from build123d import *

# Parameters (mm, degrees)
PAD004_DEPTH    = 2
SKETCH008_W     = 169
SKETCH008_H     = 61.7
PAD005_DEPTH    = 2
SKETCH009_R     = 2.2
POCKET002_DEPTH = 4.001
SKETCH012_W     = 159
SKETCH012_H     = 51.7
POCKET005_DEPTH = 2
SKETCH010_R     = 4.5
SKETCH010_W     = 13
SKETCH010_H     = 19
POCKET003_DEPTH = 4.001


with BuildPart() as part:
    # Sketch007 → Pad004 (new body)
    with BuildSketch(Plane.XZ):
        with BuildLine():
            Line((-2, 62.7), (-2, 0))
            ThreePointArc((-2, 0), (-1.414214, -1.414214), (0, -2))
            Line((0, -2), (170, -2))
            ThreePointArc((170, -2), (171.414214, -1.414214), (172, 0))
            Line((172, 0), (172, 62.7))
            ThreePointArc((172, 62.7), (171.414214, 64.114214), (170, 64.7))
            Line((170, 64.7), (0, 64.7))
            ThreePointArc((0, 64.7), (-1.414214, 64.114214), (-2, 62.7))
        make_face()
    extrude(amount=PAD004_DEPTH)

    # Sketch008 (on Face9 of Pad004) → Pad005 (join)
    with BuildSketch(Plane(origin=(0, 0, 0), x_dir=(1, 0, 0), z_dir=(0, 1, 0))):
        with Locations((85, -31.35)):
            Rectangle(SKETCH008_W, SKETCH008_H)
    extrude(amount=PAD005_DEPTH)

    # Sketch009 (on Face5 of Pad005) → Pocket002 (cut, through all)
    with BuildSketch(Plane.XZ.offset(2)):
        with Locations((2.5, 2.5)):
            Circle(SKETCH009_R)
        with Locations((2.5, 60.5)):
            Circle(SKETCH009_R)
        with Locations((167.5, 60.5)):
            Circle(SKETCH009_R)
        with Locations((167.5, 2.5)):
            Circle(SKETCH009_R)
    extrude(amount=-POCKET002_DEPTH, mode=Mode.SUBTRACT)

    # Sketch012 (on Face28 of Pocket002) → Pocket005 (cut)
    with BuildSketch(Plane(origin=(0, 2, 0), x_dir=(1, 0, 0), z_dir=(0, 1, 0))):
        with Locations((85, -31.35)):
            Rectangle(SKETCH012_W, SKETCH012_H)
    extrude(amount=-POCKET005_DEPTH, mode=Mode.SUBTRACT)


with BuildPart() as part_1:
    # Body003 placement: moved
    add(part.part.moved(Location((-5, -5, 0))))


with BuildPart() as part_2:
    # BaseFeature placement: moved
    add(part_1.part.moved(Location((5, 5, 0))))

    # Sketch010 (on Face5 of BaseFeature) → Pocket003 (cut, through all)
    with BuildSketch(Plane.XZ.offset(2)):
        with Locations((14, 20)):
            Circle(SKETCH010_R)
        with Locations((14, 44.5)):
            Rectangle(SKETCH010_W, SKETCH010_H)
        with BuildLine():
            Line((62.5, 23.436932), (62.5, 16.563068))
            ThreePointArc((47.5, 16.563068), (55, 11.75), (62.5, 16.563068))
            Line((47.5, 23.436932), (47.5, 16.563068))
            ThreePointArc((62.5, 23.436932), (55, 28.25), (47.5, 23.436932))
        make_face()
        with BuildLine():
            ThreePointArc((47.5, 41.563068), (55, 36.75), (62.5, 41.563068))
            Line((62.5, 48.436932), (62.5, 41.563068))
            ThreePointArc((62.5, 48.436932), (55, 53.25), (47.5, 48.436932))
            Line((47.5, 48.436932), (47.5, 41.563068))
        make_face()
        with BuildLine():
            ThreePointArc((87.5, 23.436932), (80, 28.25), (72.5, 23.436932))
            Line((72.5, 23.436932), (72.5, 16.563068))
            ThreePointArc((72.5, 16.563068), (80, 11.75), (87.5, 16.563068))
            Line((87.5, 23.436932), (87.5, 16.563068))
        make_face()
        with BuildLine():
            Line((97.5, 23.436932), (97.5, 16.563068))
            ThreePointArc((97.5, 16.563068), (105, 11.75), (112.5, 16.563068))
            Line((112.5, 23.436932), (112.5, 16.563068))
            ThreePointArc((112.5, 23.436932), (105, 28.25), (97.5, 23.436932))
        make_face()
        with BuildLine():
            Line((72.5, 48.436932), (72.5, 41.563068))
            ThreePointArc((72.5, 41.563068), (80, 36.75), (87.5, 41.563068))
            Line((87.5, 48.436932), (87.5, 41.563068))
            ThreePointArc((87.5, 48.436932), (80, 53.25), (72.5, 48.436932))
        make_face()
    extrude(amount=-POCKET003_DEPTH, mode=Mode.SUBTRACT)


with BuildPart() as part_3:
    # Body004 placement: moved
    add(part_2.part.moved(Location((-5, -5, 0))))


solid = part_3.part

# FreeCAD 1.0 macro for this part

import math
import FreeCAD as App
import Part
import Sketcher
from FreeCAD import Vector


def add_polygon(sketch, points):
    """Adds a closed chain of lines whose ends are joined by coincident constraints."""
    first, n = sketch.GeometryCount, len(points)
    for a, b in zip(points, points[1:] + points[:1]):
        sketch.addGeometry(Part.LineSegment(App.Vector(*a, 0), App.Vector(*b, 0)), False)
    for i in range(n):
        sketch.addConstraint(Sketcher.Constraint("Coincident", first + i, 2, first + (i + 1) % n, 1))

doc = App.newDocument("Part")
body = doc.addObject("PartDesign::Body", "Body")

# Sketch on XZ plane
sketch1 = doc.addObject("Sketcher::SketchObject", "Sketch")
body.addObject(sketch1)
sketch1.AttachmentSupport = (doc.XZ_Plane, [""])
sketch1.MapMode = "FlatFace"
sketch1.addGeometry([
    Part.LineSegment(Vector(-2, 62.7, 0), Vector(-2, 0, 0)),  # 0
    Part.ArcOfCircle(Part.Circle(Vector(-0.000001, -0.000001, 0), Vector(0, 0, 1), 1.999999), math.radians(179.999957), math.radians(270.000043)),  # 1
    Part.LineSegment(Vector(0, -2, 0), Vector(170, -2, 0)),  # 2
    Part.ArcOfCircle(Part.Circle(Vector(170.000001, -0.000001, 0), Vector(0, 0, 1), 1.999999), math.radians(-90.000043), math.radians(0.000043)),  # 3
    Part.LineSegment(Vector(172, 0, 0), Vector(172, 62.7, 0)),  # 4
    Part.ArcOfCircle(Part.Circle(Vector(170.000001, 62.700001, 0), Vector(0, 0, 1), 1.999999), math.radians(-0.000043), math.radians(90.000043)),  # 5
    Part.LineSegment(Vector(170, 64.7, 0), Vector(0, 64.7, 0)),  # 6
    Part.ArcOfCircle(Part.Circle(Vector(-0.000001, 62.700001, 0), Vector(0, 0, 1), 1.999999), math.radians(89.999957), math.radians(180.000043)),  # 7
], False)
sketch1.addConstraint([
    Sketcher.Constraint("Tangent", 0, 2, 1, 1),
    Sketcher.Constraint("Tangent", 1, 2, 2, 1),
    Sketcher.Constraint("Tangent", 2, 2, 3, 1),
    Sketcher.Constraint("Tangent", 3, 2, 4, 1),
    Sketcher.Constraint("Tangent", 4, 2, 5, 1),
    Sketcher.Constraint("Tangent", 5, 2, 6, 1),
    Sketcher.Constraint("Tangent", 6, 2, 7, 1),
    Sketcher.Constraint("Tangent", 7, 2, 0, 1),
    Sketcher.Constraint("Vertical", 0),
    Sketcher.Constraint("Horizontal", 2),
    Sketcher.Constraint("Vertical", 4),
    Sketcher.Constraint("Horizontal", 6),
    Sketcher.Constraint("Coincident", 1, 3, -1, 1),
    Sketcher.Constraint("Equal", 1, 3),
    Sketcher.Constraint("Equal", 3, 5),
    Sketcher.Constraint("Equal", 5, 7),
    Sketcher.Constraint("Radius", 1, 1.999999),
    Sketcher.Constraint("DistanceX", 2, 1, 2, 2, 170.0),
    Sketcher.Constraint("DistanceY", 0, 2, 0, 1, 62.7),
])
pad1 = doc.addObject("PartDesign::Pad", "Pad")
body.addObject(pad1)
pad1.Profile = sketch1
pad1.Length = 2

# Sketch on XZ plane
sketch2 = doc.addObject("Sketcher::SketchObject", "Sketch001")
body.addObject(sketch2)
sketch2.AttachmentSupport = (doc.XZ_Plane, [""])
sketch2.MapMode = "FlatFace"
add_polygon(sketch2, [(0.5, 0.5), (0.5, 62.2), (169.5, 62.2), (169.5, 0.5)])  # lines 0-3
sketch2.addConstraint([
    Sketcher.Constraint("Vertical", 0),
    Sketcher.Constraint("Horizontal", 1),
    Sketcher.Constraint("Vertical", 2),
    Sketcher.Constraint("Horizontal", 3),
    Sketcher.Constraint("DistanceX", 1, 1, 1, 2, 169.0),
    Sketcher.Constraint("DistanceY", 0, 1, 0, 2, 61.7),
    Sketcher.Constraint("DistanceX", -1, 1, 0, 2, 0.5),
    Sketcher.Constraint("DistanceY", -1, 1, 0, 2, 62.2),
])
pad2 = doc.addObject("PartDesign::Pad", "Pad001")
body.addObject(pad2)
pad2.Profile = sketch2
pad2.Length = 2
pad2.Reversed = True

# Sketch on XZ plane
sketch3 = doc.addObject("Sketcher::SketchObject", "Sketch002")
body.addObject(sketch3)
sketch3.AttachmentSupport = (doc.XZ_Plane, [""])
sketch3.MapMode = "FlatFace"
sketch3.AttachmentOffset = App.Placement(Vector(0, 0, 2), App.Rotation())
sketch3.addGeometry([
    Part.Circle(Vector(2.5, 2.5, 0), Vector(0, 0, 1), 2.2),
    Part.Circle(Vector(2.5, 60.5, 0), Vector(0, 0, 1), 2.2),
    Part.Circle(Vector(167.5, 60.5, 0), Vector(0, 0, 1), 2.2),
    Part.Circle(Vector(167.5, 2.5, 0), Vector(0, 0, 1), 2.2),
], False)
sketch3.addConstraint([
    Sketcher.Constraint("Equal", 0, 1),
    Sketcher.Constraint("Equal", 1, 2),
    Sketcher.Constraint("Equal", 2, 3),
    Sketcher.Constraint("Horizontal", 1, 3, 2, 3),
    Sketcher.Constraint("Horizontal", 0, 3, 3, 3),
    Sketcher.Constraint("Vertical", 0, 3, 1, 3),
    Sketcher.Constraint("Vertical", 2, 3, 3, 3),
    Sketcher.Constraint("Diameter", 0, 4.4),
    Sketcher.Constraint("DistanceY", 0, 3, 1, 3, 58.0),
    Sketcher.Constraint("DistanceX", 1, 3, 2, 3, 165.0),
    Sketcher.Constraint("DistanceX", -1, 1, 0, 3, 2.5),
    Sketcher.Constraint("DistanceY", -1, 1, 0, 3, 2.5),
])
pocket1 = doc.addObject("PartDesign::Pocket", "Pocket")
body.addObject(pocket1)
pocket1.Profile = sketch3
pocket1.Type = "ThroughAll"

# Sketch on XZ plane
sketch4 = doc.addObject("Sketcher::SketchObject", "Sketch003")
body.addObject(sketch4)
sketch4.AttachmentSupport = (doc.XZ_Plane, [""])
sketch4.MapMode = "FlatFace"
sketch4.AttachmentOffset = App.Placement(Vector(0, 0, -2), App.Rotation())
add_polygon(sketch4, [(5.5, 5.5), (5.5, 57.2), (164.5, 57.2), (164.5, 5.5)])  # lines 0-3
sketch4.addConstraint([
    Sketcher.Constraint("Vertical", 0),
    Sketcher.Constraint("Horizontal", 1),
    Sketcher.Constraint("Vertical", 2),
    Sketcher.Constraint("Horizontal", 3),
    Sketcher.Constraint("DistanceX", 1, 1, 1, 2, 159.0),
    Sketcher.Constraint("DistanceY", 0, 1, 0, 2, 51.7),
    Sketcher.Constraint("DistanceX", -1, 1, 0, 2, 5.5),
    Sketcher.Constraint("DistanceY", -1, 1, 0, 2, 57.2),
])
pocket2 = doc.addObject("PartDesign::Pocket", "Pocket001")
body.addObject(pocket2)
pocket2.Profile = sketch4
pocket2.Length = 2
pocket2.Reversed = True
body2 = doc.addObject("PartDesign::Body", "Body001")
doc.recompute()

body.Placement = App.Placement(Vector(-5, -5, 0), App.Rotation(Vector(0, 0, 1), 0))
boolean = doc.addObject("PartDesign::Boolean", "Boolean")
body2.addObject(boolean)
boolean.Type = "Fuse"
boolean.addObjects([body])
body3 = doc.addObject("PartDesign::Body", "Body002")
doc.recompute()

body2.Placement = App.Placement(Vector(5, 5, 0), App.Rotation(Vector(0, 0, 1), 0))
boolean2 = doc.addObject("PartDesign::Boolean", "Boolean001")
body3.addObject(boolean2)
boolean2.Type = "Fuse"
boolean2.addObjects([body2])

# Sketch on XZ plane
sketch5 = doc.addObject("Sketcher::SketchObject", "Sketch004")
body3.addObject(sketch5)
sketch5.AttachmentSupport = (doc.getObject("XZ_Plane002"), [""])
sketch5.MapMode = "FlatFace"
sketch5.AttachmentOffset = App.Placement(Vector(0, 0, 2), App.Rotation())
sketch5.addGeometry(Part.Circle(Vector(14, 20, 0), Vector(0, 0, 1), 4.5), False)  # 0
add_polygon(sketch5, [(7.5, 54), (7.5, 35), (20.5, 35), (20.5, 54)])  # lines 1-4
sketch5.addGeometry(Part.LineSegment(Vector(62.5, 16.563068, 0), Vector(62.5, 23.436932, 0)), False)  # 5
sketch5.addGeometry(Part.ArcOfCircle(Part.Circle(Vector(55, 20, 0), Vector(0, 0, 1), 8.25), math.radians(24.61998), math.radians(155.38002)), False)  # 6
sketch5.addGeometry(Part.LineSegment(Vector(47.5, 23.436932, 0), Vector(47.5, 16.563068, 0)), False)  # 7
sketch5.addGeometry(Part.ArcOfCircle(Part.Circle(Vector(55, 20, 0), Vector(0, 0, 1), 8.25), math.radians(-155.38002), math.radians(-24.61998)), False)  # 8
sketch5.addGeometry(Part.ArcOfCircle(Part.Circle(Vector(55, 45, 0), Vector(0, 0, 1), 8.25), math.radians(-155.38002), math.radians(-24.61998)), False)  # 9
sketch5.addGeometry(Part.LineSegment(Vector(62.5, 41.563068, 0), Vector(62.5, 48.436932, 0)), False)  # 10
sketch5.addGeometry(Part.ArcOfCircle(Part.Circle(Vector(55, 45, 0), Vector(0, 0, 1), 8.25), math.radians(24.61998), math.radians(155.38002)), False)  # 11
sketch5.addGeometry(Part.LineSegment(Vector(47.5, 48.436932, 0), Vector(47.5, 41.563068, 0)), False)  # 12
sketch5.addGeometry(Part.ArcOfCircle(Part.Circle(Vector(80, 20, 0), Vector(0, 0, 1), 8.25), math.radians(24.61998), math.radians(155.38002)), False)  # 13
sketch5.addGeometry(Part.LineSegment(Vector(72.5, 23.436932, 0), Vector(72.5, 16.563068, 0)), False)  # 14
sketch5.addGeometry(Part.ArcOfCircle(Part.Circle(Vector(80, 20, 0), Vector(0, 0, 1), 8.25), math.radians(-155.38002), math.radians(-24.61998)), False)  # 15
sketch5.addGeometry(Part.LineSegment(Vector(87.5, 16.563068, 0), Vector(87.5, 23.436932, 0)), False)  # 16
sketch5.addGeometry(Part.LineSegment(Vector(97.5, 23.436932, 0), Vector(97.5, 16.563068, 0)), False)  # 17
sketch5.addGeometry(Part.ArcOfCircle(Part.Circle(Vector(105, 20, 0), Vector(0, 0, 1), 8.25), math.radians(-155.38002), math.radians(-24.61998)), False)  # 18
sketch5.addGeometry(Part.LineSegment(Vector(112.5, 16.563068, 0), Vector(112.5, 23.436932, 0)), False)  # 19
sketch5.addGeometry(Part.ArcOfCircle(Part.Circle(Vector(105, 20, 0), Vector(0, 0, 1), 8.25), math.radians(24.61998), math.radians(155.38002)), False)  # 20
sketch5.addGeometry(Part.LineSegment(Vector(72.5, 48.436932, 0), Vector(72.5, 41.563068, 0)), False)  # 21
sketch5.addGeometry(Part.ArcOfCircle(Part.Circle(Vector(80, 45, 0), Vector(0, 0, 1), 8.25), math.radians(-155.38002), math.radians(-24.61998)), False)  # 22
sketch5.addGeometry(Part.LineSegment(Vector(87.5, 41.563068, 0), Vector(87.5, 48.436932, 0)), False)  # 23
sketch5.addGeometry(Part.ArcOfCircle(Part.Circle(Vector(80, 45, 0), Vector(0, 0, 1), 8.25), math.radians(24.61998), math.radians(155.38002)), False)  # 24
sketch5.addConstraint([
    Sketcher.Constraint("Coincident", 5, 2, 6, 1),
    Sketcher.Constraint("Coincident", 6, 2, 7, 1),
    Sketcher.Constraint("Coincident", 7, 2, 8, 1),
    Sketcher.Constraint("Coincident", 8, 2, 5, 1),
    Sketcher.Constraint("Coincident", 9, 2, 10, 1),
    Sketcher.Constraint("Coincident", 10, 2, 11, 1),
    Sketcher.Constraint("Coincident", 11, 2, 12, 1),
    Sketcher.Constraint("Coincident", 12, 2, 9, 1),
    Sketcher.Constraint("Coincident", 13, 2, 14, 1),
    Sketcher.Constraint("Coincident", 14, 2, 15, 1),
    Sketcher.Constraint("Coincident", 15, 2, 16, 1),
    Sketcher.Constraint("Coincident", 16, 2, 13, 1),
    Sketcher.Constraint("Coincident", 17, 2, 18, 1),
    Sketcher.Constraint("Coincident", 18, 2, 19, 1),
    Sketcher.Constraint("Coincident", 19, 2, 20, 1),
    Sketcher.Constraint("Coincident", 20, 2, 17, 1),
    Sketcher.Constraint("Coincident", 21, 2, 22, 1),
    Sketcher.Constraint("Coincident", 22, 2, 23, 1),
    Sketcher.Constraint("Coincident", 23, 2, 24, 1),
    Sketcher.Constraint("Coincident", 24, 2, 21, 1),
    Sketcher.Constraint("Vertical", 1),
    Sketcher.Constraint("Horizontal", 2),
    Sketcher.Constraint("Vertical", 3),
    Sketcher.Constraint("Horizontal", 4),
    Sketcher.Constraint("Vertical", 5),
    Sketcher.Constraint("Vertical", 7),
    Sketcher.Constraint("Vertical", 10),
    Sketcher.Constraint("Vertical", 12),
    Sketcher.Constraint("Vertical", 14),
    Sketcher.Constraint("Vertical", 16),
    Sketcher.Constraint("Vertical", 17),
    Sketcher.Constraint("Vertical", 19),
    Sketcher.Constraint("Vertical", 21),
    Sketcher.Constraint("Vertical", 23),
    Sketcher.Constraint("Coincident", 8, 3, 6, 3),
    Sketcher.Constraint("Coincident", 11, 3, 9, 3),
    Sketcher.Constraint("Coincident", 15, 3, 13, 3),
    Sketcher.Constraint("Coincident", 20, 3, 18, 3),
    Sketcher.Constraint("Coincident", 24, 3, 22, 3),
    Sketcher.Constraint("Equal", 6, 8),
    Sketcher.Constraint("Equal", 8, 9),
    Sketcher.Constraint("Equal", 9, 11),
    Sketcher.Constraint("Equal", 11, 13),
    Sketcher.Constraint("Equal", 13, 15),
    Sketcher.Constraint("Equal", 15, 18),
    Sketcher.Constraint("Equal", 18, 20),
    Sketcher.Constraint("Equal", 20, 22),
    Sketcher.Constraint("Equal", 22, 24),
    Sketcher.Constraint("Horizontal", 0, 3, 6, 3),
    Sketcher.Constraint("Horizontal", 8, 3, 13, 3),
    Sketcher.Constraint("Horizontal", 15, 3, 18, 3),
    Sketcher.Constraint("Horizontal", 11, 3, 22, 3),
    Sketcher.Constraint("Horizontal", 5, 2, 6, 2),
    Sketcher.Constraint("Horizontal", 10, 2, 11, 2),
    Sketcher.Constraint("Horizontal", 6, 2, 13, 2),
    Sketcher.Constraint("Horizontal", 14, 2, 15, 2),
    Sketcher.Constraint("Horizontal", 15, 2, 17, 2),
    Sketcher.Constraint("Horizontal", 17, 2, 18, 2),
    Sketcher.Constraint("Horizontal", 12, 2, 21, 2),
    Sketcher.Constraint("Horizontal", 21, 2, 22, 2),
    Sketcher.Constraint("Vertical", 8, 3, 9, 3),
    Sketcher.Constraint("Vertical", 15, 3, 22, 3),
    Sketcher.Constraint("Vertical", 8, 2, 9, 2),
    Sketcher.Constraint("Diameter", 0, 9.0),
    Sketcher.Constraint("DistanceX", 2, 1, 2, 2, 13.0),
    Sketcher.Constraint("DistanceY", 1, 2, 1, 1, 19.0),
    Sketcher.Constraint("Radius", 6, 8.25),
    Sketcher.Constraint("DistanceX", -1, 1, 0, 3, 14.0),
    Sketcher.Constraint("DistanceY", -1, 1, 0, 3, 20.0),
    Sketcher.Constraint("DistanceX", -1, 1, 6, 3, 55.0),
    Sketcher.Constraint("DistanceY", -1, 1, 9, 3, 45.0),
    Sketcher.Constraint("DistanceX", -1, 1, 13, 3, 80.0),
    Sketcher.Constraint("DistanceX", -1, 1, 18, 3, 105.0),
    Sketcher.Constraint("DistanceY", -1, 1, 1, 2, 35.0),
    Sketcher.Constraint("DistanceX", 6, 2, 5, 2, 15.0),
    Sketcher.Constraint("DistanceX", -1, 1, 1, 2, 7.5),
])
pocket3 = doc.addObject("PartDesign::Pocket", "Pocket002")
body3.addObject(pocket3)
pocket3.Profile = sketch5
pocket3.Type = "ThroughAll"
body4 = doc.addObject("PartDesign::Body", "Body003")
doc.recompute()

body3.Placement = App.Placement(Vector(-5, -5, 0), App.Rotation(Vector(0, 0, 1), 0))
boolean3 = doc.addObject("PartDesign::Boolean", "Boolean002")
body4.addObject(boolean3)
boolean3.Type = "Fuse"
boolean3.addObjects([body3])

doc.recompute()
